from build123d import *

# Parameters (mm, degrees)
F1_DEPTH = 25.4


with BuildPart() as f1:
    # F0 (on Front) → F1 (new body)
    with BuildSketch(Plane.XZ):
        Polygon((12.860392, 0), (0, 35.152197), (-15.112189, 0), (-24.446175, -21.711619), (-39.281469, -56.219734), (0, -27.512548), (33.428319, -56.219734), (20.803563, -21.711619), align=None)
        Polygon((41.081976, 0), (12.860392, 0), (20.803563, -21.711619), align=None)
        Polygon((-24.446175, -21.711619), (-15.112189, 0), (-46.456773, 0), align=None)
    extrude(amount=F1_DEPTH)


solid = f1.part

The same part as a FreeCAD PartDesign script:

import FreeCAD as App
import Part
import Sketcher
from FreeCAD import Vector
Q = App.Units.Quantity


def add_polygon(sketch, points):
    """Adds a closed chain of lines whose ends are joined by coincident constraints."""
    first, n = sketch.GeometryCount, len(points)
    for a, b in zip(points, points[1:] + points[:1]):
        sketch.addGeometry(Part.LineSegment(App.Vector(*a, 0), App.Vector(*b, 0)), False)
    for i in range(n):
        sketch.addConstraint(Sketcher.Constraint("Coincident", first + i, 2, first + (i + 1) % n, 1))

doc = App.newDocument("Part")
body = doc.addObject("PartDesign::Body", "Body")

sketch1 = body.newObject("Sketcher::SketchObject", "Sketch")
sketch1.AttachmentSupport = (doc.getObject("XZ_Plane"), [""])
sketch1.MapMode = "FlatFace"
add_polygon(sketch1, [(13, 0), (0, 35), (-15, 0), (-46, 0), (-24, -22), (-39, -56), (0, -28), (33, -56), (21, -22), (41, 0)])
sketch1.addConstraint(Sketcher.Constraint("Horizontal", 2))
sketch1.addConstraint(Sketcher.Constraint("Horizontal", 9))
sketch1.addConstraint(Sketcher.Constraint("PointOnObject", 0, 2, -2))
sketch1.addConstraint(Sketcher.Constraint("PointOnObject", 1, 2, -1))
sketch1.addConstraint(Sketcher.Constraint("PointOnObject", 5, 2, -2))
sketch1.addConstraint(Sketcher.Constraint("PointOnObject", 8, 2, -1))
sketch1.addConstraint(Sketcher.Constraint("Parallel", 1, 4))
sketch1.addConstraint(Sketcher.Constraint("Parallel", 0, 7))
sketch1.addConstraint(Sketcher.Constraint("Horizontal", 4, 2, 6, 2))
sketch1.addConstraint(Sketcher.Constraint("Horizontal", 3, 2, 7, 2))
sketch1.addConstraint(Sketcher.Constraint("Distance", 3, Q("30.916999 mm")))
sketch1.addConstraint(Sketcher.Constraint("Distance", 6, Q("44.06308 mm")))
sketch1.addConstraint(Sketcher.Constraint("DistanceX", 2, 2, 2, 1, Q("31.344584 mm")))
sketch1.addConstraint(Sketcher.Constraint("DistanceX", 9, 2, 9, 1, Q("28.221584 mm")))
sketch1.addConstraint(Sketcher.Constraint("DistanceX", 1, 2, -1, 1, Q("15.112189 mm")))
sketch1.addConstraint(Sketcher.Constraint("DistanceY", 3, 2, -1, 1, Q("21.711619 mm")))
sketch1.addConstraint(Sketcher.Constraint("DistanceX", 4, 2, -1, 1, Q("39.281469 mm")))
sketch1.addConstraint(Sketcher.Constraint("DistanceX", -1, 1, 6, 2, Q("33.428319 mm")))
sketch1.addConstraint(Sketcher.Constraint("DistanceX", -1, 1, 9, 2, Q("12.860392 mm")))
sketch1.addConstraint(Sketcher.Constraint("DistanceY", 4, 2, 0, 2, Q("91.371931 mm")))
pad1 = body.newObject("PartDesign::Pad", "Pad")
pad1.Profile = sketch1
pad1.Length = Q("1 in")

doc.recompute()
